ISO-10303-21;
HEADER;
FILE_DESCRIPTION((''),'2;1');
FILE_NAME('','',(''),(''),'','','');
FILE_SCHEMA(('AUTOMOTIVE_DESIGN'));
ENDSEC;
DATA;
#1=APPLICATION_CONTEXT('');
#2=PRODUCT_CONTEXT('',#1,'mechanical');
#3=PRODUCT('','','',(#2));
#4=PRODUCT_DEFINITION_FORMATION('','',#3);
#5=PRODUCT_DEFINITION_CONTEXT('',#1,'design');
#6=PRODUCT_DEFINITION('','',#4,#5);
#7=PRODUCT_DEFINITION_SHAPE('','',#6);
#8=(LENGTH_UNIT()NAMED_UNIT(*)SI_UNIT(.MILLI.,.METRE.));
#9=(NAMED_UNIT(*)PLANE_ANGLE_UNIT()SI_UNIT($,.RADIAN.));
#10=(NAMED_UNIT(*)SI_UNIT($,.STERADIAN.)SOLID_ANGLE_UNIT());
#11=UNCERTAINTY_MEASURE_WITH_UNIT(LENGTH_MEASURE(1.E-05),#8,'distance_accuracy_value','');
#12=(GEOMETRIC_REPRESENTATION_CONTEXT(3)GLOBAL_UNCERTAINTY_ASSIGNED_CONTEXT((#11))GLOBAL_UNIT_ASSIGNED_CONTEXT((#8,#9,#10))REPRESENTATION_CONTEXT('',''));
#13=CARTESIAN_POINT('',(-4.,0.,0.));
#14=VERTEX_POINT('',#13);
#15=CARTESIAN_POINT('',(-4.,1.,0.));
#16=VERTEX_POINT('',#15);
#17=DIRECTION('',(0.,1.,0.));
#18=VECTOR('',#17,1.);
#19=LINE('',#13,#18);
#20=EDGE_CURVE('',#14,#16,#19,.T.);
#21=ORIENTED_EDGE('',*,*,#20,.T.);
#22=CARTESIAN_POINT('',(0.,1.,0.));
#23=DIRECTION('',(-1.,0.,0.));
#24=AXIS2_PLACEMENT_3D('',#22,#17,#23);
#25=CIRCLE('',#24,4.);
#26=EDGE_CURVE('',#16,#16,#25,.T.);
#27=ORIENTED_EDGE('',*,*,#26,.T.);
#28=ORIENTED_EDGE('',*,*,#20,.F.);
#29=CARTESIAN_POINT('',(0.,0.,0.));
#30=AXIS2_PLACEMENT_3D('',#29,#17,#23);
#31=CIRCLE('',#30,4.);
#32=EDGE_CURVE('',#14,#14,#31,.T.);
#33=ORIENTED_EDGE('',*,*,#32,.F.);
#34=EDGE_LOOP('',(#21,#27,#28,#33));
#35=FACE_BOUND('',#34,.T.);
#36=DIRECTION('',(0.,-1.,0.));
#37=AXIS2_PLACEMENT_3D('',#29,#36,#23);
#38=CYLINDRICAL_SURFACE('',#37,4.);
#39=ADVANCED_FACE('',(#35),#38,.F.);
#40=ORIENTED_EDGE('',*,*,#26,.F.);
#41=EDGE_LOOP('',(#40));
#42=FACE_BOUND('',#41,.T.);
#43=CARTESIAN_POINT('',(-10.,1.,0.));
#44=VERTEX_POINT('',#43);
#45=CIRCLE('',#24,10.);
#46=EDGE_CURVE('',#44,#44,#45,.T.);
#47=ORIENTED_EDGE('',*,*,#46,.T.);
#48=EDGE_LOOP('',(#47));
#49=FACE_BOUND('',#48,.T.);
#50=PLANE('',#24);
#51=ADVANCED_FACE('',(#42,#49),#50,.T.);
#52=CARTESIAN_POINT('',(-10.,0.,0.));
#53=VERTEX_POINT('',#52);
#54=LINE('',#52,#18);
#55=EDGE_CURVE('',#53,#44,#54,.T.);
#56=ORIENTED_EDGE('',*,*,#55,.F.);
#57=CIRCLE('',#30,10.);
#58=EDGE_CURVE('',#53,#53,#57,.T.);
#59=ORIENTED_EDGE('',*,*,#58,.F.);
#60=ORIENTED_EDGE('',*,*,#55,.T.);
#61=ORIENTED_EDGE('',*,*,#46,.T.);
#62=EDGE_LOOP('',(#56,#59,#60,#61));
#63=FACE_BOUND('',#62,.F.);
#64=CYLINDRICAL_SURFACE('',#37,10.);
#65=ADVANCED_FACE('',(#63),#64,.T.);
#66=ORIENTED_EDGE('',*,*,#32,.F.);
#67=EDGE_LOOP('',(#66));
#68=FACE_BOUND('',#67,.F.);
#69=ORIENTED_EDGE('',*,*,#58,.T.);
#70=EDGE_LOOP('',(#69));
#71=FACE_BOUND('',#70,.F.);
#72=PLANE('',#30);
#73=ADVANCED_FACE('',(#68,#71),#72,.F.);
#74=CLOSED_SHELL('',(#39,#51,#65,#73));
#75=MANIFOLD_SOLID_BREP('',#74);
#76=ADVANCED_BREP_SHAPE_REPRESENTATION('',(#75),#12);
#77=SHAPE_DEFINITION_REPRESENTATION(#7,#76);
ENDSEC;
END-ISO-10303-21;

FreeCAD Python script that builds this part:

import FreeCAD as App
import Part
import Sketcher
Q = App.Units.Quantity

doc = App.newDocument("Part")
body = doc.addObject("PartDesign::Body", "Body")

sketch1 = body.newObject("Sketcher::SketchObject", "Sketch")
sketch1.AttachmentSupport = (doc.getObject("XZ_Plane"), [""])
sketch1.MapMode = "FlatFace"
sketch1.addGeometry(Part.Circle(App.Vector(0, 0, 0), App.Vector(0, 0, 1), 10), False)
sketch1.addGeometry(Part.Circle(App.Vector(0, 0, 0), App.Vector(0, 0, 1), 4), False)
sketch1.addConstraint(Sketcher.Constraint("Coincident", 0, 3, -1, 1))
sketch1.addConstraint(Sketcher.Constraint("Coincident", 1, 3, -1, 1))
sketch1.addConstraint(Sketcher.Constraint("Diameter", 0, Q("20 mm")))
sketch1.addConstraint(Sketcher.Constraint("Diameter", 1, Q("8 mm")))
pad1 = body.newObject("PartDesign::Pad", "Pad")
pad1.Profile = sketch1
pad1.Length = 1
pad1.Reversed = True

doc.recompute()
